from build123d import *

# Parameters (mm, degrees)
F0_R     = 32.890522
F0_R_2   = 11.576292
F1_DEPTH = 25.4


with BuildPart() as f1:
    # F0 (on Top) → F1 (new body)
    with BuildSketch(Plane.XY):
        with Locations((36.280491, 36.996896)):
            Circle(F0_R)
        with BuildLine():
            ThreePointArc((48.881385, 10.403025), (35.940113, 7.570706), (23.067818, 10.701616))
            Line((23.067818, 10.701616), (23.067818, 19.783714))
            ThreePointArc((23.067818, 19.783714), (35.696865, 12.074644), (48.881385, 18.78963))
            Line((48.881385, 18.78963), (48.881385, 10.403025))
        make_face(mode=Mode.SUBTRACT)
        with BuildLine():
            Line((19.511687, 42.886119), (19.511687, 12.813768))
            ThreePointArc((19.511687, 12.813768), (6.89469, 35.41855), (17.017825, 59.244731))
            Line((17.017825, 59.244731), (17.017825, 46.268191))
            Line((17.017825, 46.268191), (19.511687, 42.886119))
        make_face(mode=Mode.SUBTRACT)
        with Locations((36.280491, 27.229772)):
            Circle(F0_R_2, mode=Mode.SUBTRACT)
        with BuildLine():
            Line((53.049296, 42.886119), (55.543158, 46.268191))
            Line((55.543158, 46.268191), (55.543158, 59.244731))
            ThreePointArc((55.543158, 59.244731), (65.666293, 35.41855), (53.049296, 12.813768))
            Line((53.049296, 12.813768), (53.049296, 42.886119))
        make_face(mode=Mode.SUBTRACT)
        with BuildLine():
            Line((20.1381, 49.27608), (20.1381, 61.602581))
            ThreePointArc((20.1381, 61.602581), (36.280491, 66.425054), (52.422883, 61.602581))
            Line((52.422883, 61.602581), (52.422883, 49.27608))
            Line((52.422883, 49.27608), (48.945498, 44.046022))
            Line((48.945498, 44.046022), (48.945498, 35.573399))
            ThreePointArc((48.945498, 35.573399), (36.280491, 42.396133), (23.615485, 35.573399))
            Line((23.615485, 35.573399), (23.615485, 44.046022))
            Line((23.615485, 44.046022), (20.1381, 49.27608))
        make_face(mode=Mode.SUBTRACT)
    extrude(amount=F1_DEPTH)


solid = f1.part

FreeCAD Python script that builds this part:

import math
import FreeCAD as App
import Part
import Sketcher
Q = App.Units.Quantity

doc = App.newDocument("Part")
body = doc.addObject("PartDesign::Body", "Body")

# Sketch on XY plane
sketch1 = body.newObject("Sketcher::SketchObject", "Sketch")
sketch1.AttachmentSupport = (doc.getObject("XY_Plane"), [""])
sketch1.MapMode = "FlatFace"
sketch1.addGeometry([
    Part.Circle(App.Vector(36.280491, 36.996896, 0), App.Vector(0, 0, 1), 32.890522),  # 0
    Part.LineSegment(App.Vector(48.881385, 18.78963, 0), App.Vector(48.881385, 10.403025, 0)),  # 1
    Part.ArcOfCircle(Part.Circle(App.Vector(36.280491, 36.996892, 0), App.Vector(0, 0, 1), 29.428155), math.radians(-116.678306), math.radians(-64.64714)),  # 2
    Part.LineSegment(App.Vector(23.067818, 10.701616, 0), App.Vector(23.067818, 19.783714, 0)),  # 3
    Part.ArcOfCircle(Part.Circle(App.Vector(36.280491, 27.229772, 0), App.Vector(0, 0, 1), 15.166361), math.radians(-150.596384), math.radians(-33.814373)),  # 4
    Part.LineSegment(App.Vector(17.017825, 46.268191, 0), App.Vector(19.511687, 42.886119, 0)),  # 5
    Part.LineSegment(App.Vector(19.511687, 42.886119, 0), App.Vector(19.511687, 12.813768, 0)),  # 6
    Part.ArcOfCircle(Part.Circle(App.Vector(36.280491, 36.996896, 0), App.Vector(0, 0, 1), 29.428157), math.radians(130.886735), math.radians(235.262205)),  # 7
    Part.LineSegment(App.Vector(17.017825, 59.244731, 0), App.Vector(17.017825, 46.268191, 0)),  # 8
    Part.Circle(App.Vector(36.280491, 27.229772, 0), App.Vector(0, 0, 1), 11.576292),  # 9
    Part.LineSegment(App.Vector(53.049296, 12.813768, 0), App.Vector(53.049296, 42.886119, 0)),  # 10
    Part.LineSegment(App.Vector(53.049296, 42.886119, 0), App.Vector(55.543158, 46.268191, 0)),  # 11
    Part.LineSegment(App.Vector(55.543158, 46.268191, 0), App.Vector(55.543158, 59.244731, 0)),  # 12
    Part.ArcOfCircle(Part.Circle(App.Vector(36.280492, 36.996896, 0), App.Vector(0, 0, 1), 29.428157), math.radians(-55.262205), math.radians(49.113265)),  # 13
    Part.LineSegment(App.Vector(23.615485, 44.046022, 0), App.Vector(20.1381, 49.27608, 0)),  # 14
    Part.LineSegment(App.Vector(20.1381, 49.27608, 0), App.Vector(20.1381, 61.602581, 0)),  # 15
    Part.ArcOfCircle(Part.Circle(App.Vector(36.280491, 36.99689, 0), App.Vector(0, 0, 1), 29.428164), math.radians(56.733402), math.radians(123.266598)),  # 16
    Part.LineSegment(App.Vector(52.422883, 61.602581, 0), App.Vector(52.422883, 49.27608, 0)),  # 17
    Part.LineSegment(App.Vector(52.422883, 49.27608, 0), App.Vector(48.945498, 44.046022, 0)),  # 18
    Part.LineSegment(App.Vector(48.945498, 44.046022, 0), App.Vector(48.945498, 35.573399, 0)),  # 19
    Part.ArcOfCircle(Part.Circle(App.Vector(36.280491, 27.229772, 0), App.Vector(0, 0, 1), 15.166361), math.radians(33.376641), math.radians(146.623359)),  # 20
    Part.LineSegment(App.Vector(23.615485, 35.573399, 0), App.Vector(23.615485, 44.046022, 0)),  # 21
], False)
sketch1.addConstraint([
    Sketcher.Constraint("Coincident", 1, 2, 2, 2),
    Sketcher.Constraint("Coincident", 2, 1, 3, 1),
    Sketcher.Constraint("Coincident", 3, 2, 4, 1),
    Sketcher.Constraint("Coincident", 4, 2, 1, 1),
    Sketcher.Constraint("Coincident", 5, 2, 6, 1),
    Sketcher.Constraint("Coincident", 6, 2, 7, 2),
    Sketcher.Constraint("Coincident", 7, 1, 8, 1),
    Sketcher.Constraint("Coincident", 8, 2, 5, 1),
    Sketcher.Constraint("Coincident", 10, 2, 11, 1),
    Sketcher.Constraint("Coincident", 11, 2, 12, 1),
    Sketcher.Constraint("Coincident", 12, 2, 13, 2),
    Sketcher.Constraint("Coincident", 13, 1, 10, 1),
    Sketcher.Constraint("Coincident", 14, 2, 15, 1),
    Sketcher.Constraint("Coincident", 15, 2, 16, 2),
    Sketcher.Constraint("Coincident", 16, 1, 17, 1),
    Sketcher.Constraint("Coincident", 17, 2, 18, 1),
    Sketcher.Constraint("Coincident", 18, 2, 19, 1),
    Sketcher.Constraint("Coincident", 19, 2, 20, 1),
    Sketcher.Constraint("Coincident", 20, 2, 21, 1),
    Sketcher.Constraint("Coincident", 21, 2, 14, 1),
    Sketcher.Constraint("Vertical", 1),
    Sketcher.Constraint("Vertical", 3),
    Sketcher.Constraint("Vertical", 6),
    Sketcher.Constraint("Vertical", 8),
    Sketcher.Constraint("Vertical", 10),
    Sketcher.Constraint("Vertical", 12),
    Sketcher.Constraint("Vertical", 15),
    Sketcher.Constraint("Vertical", 17),
    Sketcher.Constraint("Vertical", 19),
    Sketcher.Constraint("Vertical", 21),
    Sketcher.Constraint("Coincident", 2, 3, 0, 3),
    Sketcher.Constraint("Coincident", 7, 3, 0, 3),
    Sketcher.Constraint("Coincident", 9, 3, 4, 3),
    Sketcher.Constraint("Coincident", 13, 3, 0, 3),
    Sketcher.Constraint("Coincident", 16, 3, 0, 3),
    Sketcher.Constraint("Coincident", 20, 3, 4, 3),
    Sketcher.Constraint("Equal", 7, 13),
    Sketcher.Constraint("Equal", 4, 20),
    Sketcher.Constraint("Horizontal", 5, 2, 10, 2),
    Sketcher.Constraint("Horizontal", 8, 2, 11, 2),
    Sketcher.Constraint("Horizontal", 7, 1, 12, 2),
    Sketcher.Constraint("Horizontal", 6, 2, 13, 1),
    Sketcher.Constraint("Horizontal", 15, 2, 16, 1),
    Sketcher.Constraint("Horizontal", 14, 2, 17, 2),
    Sketcher.Constraint("Horizontal", 19, 2, 20, 2),
    Sketcher.Constraint("Horizontal", 18, 2, 21, 2),
    Sketcher.Constraint("Vertical", 2, 3, 4, 3),
    Sketcher.Constraint("Radius", 4, Q("15.166361 mm")),
    Sketcher.Constraint("Diameter", 0, Q("65.781044 mm")),
    Sketcher.Constraint("Diameter", 9, Q("23.152584 mm")),
    Sketcher.Constraint("DistanceY", 15, 1, 15, 2, Q("12.326501 mm")),
    Sketcher.Constraint("Radius", 2, Q("29.428155 mm")),
    Sketcher.Constraint("Radius", 7, Q("29.428157 mm")),
    Sketcher.Constraint("Radius", 16, Q("29.428164 mm")),
    Sketcher.Constraint("DistanceY", 6, 2, 6, 1, Q("30.072351 mm")),
    Sketcher.Constraint("DistanceY", 8, 2, 8, 1, Q("12.97654 mm")),
    Sketcher.Constraint("DistanceX", -1, 1, 14, 2, Q("20.1381 mm")),
    Sketcher.Constraint("DistanceY", -1, 1, 19, 2, Q("35.573399 mm")),
    Sketcher.Constraint("DistanceY", 2, 3, 11, 2, Q("9.271299 mm")),
    Sketcher.Constraint("DistanceX", 5, 2, 21, 2, Q("4.103798 mm")),
    Sketcher.Constraint("DistanceY", 1, 2, 1, 1, Q("8.386605 mm")),
    Sketcher.Constraint("DistanceY", 3, 1, 3, 2, Q("9.082098 mm")),
    Sketcher.Constraint("DistanceY", 19, 2, 19, 1, Q("8.472623 mm")),
    Sketcher.Constraint("DistanceX", -1, 1, 0, 3, Q("36.280491 mm")),
    Sketcher.Constraint("DistanceY", -1, 1, 2, 3, Q("36.996892 mm")),
    Sketcher.Constraint("DistanceY", -1, 1, 4, 3, Q("27.229772 mm")),
])
pad1 = body.newObject("PartDesign::Pad", "Pad")
pad1.Profile = sketch1
pad1.Length = Q("1 in")

doc.recompute()
